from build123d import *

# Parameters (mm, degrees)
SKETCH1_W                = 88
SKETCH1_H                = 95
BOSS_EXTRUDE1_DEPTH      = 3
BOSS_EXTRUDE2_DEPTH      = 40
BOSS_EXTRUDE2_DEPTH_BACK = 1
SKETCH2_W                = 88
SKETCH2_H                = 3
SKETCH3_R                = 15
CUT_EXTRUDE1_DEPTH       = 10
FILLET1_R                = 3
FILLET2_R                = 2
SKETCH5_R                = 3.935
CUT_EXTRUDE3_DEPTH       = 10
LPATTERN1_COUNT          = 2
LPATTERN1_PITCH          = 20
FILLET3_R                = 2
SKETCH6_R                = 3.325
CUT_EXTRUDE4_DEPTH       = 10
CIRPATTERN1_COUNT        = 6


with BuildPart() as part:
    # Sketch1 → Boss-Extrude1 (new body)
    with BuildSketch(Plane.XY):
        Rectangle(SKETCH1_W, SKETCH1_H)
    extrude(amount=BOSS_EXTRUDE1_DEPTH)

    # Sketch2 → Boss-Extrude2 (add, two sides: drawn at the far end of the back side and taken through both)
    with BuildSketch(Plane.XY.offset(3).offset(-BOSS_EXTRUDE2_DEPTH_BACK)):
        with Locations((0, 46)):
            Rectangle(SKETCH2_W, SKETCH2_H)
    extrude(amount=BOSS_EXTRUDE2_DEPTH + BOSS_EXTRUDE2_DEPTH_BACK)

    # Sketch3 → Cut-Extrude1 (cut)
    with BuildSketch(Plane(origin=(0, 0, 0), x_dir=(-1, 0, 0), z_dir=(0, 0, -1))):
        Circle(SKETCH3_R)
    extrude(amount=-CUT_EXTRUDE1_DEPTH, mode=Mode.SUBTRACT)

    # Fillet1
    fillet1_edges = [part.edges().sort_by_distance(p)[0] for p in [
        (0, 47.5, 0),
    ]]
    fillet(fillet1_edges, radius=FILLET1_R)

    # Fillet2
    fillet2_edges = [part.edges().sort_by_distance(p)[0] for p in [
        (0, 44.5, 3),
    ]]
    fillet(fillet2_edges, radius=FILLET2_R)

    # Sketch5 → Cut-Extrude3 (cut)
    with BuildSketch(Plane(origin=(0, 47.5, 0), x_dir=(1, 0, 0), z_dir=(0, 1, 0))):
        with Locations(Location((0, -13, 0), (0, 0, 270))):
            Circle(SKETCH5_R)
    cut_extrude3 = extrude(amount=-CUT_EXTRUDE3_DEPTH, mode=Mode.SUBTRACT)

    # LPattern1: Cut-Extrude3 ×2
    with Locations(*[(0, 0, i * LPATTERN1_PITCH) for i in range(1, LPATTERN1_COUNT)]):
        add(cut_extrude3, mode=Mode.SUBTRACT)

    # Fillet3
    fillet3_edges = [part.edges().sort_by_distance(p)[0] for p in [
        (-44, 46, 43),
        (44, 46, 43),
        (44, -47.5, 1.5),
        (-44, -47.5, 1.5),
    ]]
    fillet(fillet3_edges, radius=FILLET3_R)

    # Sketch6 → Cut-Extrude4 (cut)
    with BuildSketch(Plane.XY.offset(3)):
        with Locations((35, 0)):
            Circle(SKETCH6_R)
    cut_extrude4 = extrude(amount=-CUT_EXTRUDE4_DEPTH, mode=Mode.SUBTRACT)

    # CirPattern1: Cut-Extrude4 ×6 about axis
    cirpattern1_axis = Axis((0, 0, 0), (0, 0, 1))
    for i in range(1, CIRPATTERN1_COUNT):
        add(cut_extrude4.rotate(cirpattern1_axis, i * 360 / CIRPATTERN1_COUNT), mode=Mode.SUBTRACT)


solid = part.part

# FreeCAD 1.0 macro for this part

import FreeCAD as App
import Part
import Sketcher


def edges_at(feature, points):
    """Names of the edges that pass closest to the given points."""
    edges = feature.Shape.Edges
    near = lambda p: min(range(len(edges)), key=lambda i: edges[i].distToShape(Part.Vertex(*p))[0])
    return sorted({f"Edge{near(p) + 1}" for p in points})

doc = App.newDocument("Part")
body = doc.addObject("PartDesign::Body", "Body")

sketch1 = body.newObject("Sketcher::SketchObject", "Sketch")
sketch1.AttachmentSupport = (doc.getObject("XY_Plane"), [""])
sketch1.MapMode = "FlatFace"
sketch1.addGeometry(Part.LineSegment(App.Vector(-44, 47.5, 0), App.Vector(-44, -47.5, 0)), False)
sketch1.addGeometry(Part.LineSegment(App.Vector(-44, -47.5, 0), App.Vector(44, -47.5, 0)), False)
sketch1.addGeometry(Part.LineSegment(App.Vector(44, -47.5, 0), App.Vector(44, 47.5, 0)), False)
sketch1.addGeometry(Part.LineSegment(App.Vector(44, 47.5, 0), App.Vector(-44, 47.5, 0)), False)
sketch1.addConstraint(Sketcher.Constraint("Coincident", 0, 2, 1, 1))
sketch1.addConstraint(Sketcher.Constraint("Coincident", 1, 2, 2, 1))
sketch1.addConstraint(Sketcher.Constraint("Coincident", 2, 2, 3, 1))
sketch1.addConstraint(Sketcher.Constraint("Coincident", 3, 2, 0, 1))
sketch1.addConstraint(Sketcher.Constraint("Vertical", 0))
sketch1.addConstraint(Sketcher.Constraint("Horizontal", 1))
sketch1.addConstraint(Sketcher.Constraint("Vertical", 2))
sketch1.addConstraint(Sketcher.Constraint("Horizontal", 3))
sketch1.addConstraint(Sketcher.Constraint("Symmetric", 0, 2, 2, 2, -1, 1))
sketch1.addConstraint(Sketcher.Constraint("DistanceX", 1, 1, 1, 2, 88.0))
sketch1.addConstraint(Sketcher.Constraint("DistanceY", 0, 2, 0, 1, 95.0))
pad1 = body.newObject("PartDesign::Pad", "Pad")
pad1.Profile = sketch1
pad1.Length = 3

sketch2 = body.newObject("Sketcher::SketchObject", "Sketch001")
sketch2.AttachmentSupport = (doc.getObject("XY_Plane"), [""])
sketch2.MapMode = "FlatFace"
sketch2.AttachmentOffset = App.Placement(App.Vector(0, 0, 3), App.Rotation())
sketch2.addGeometry(Part.LineSegment(App.Vector(-44, 47.5, 0), App.Vector(-44, 44.5, 0)), False)
sketch2.addGeometry(Part.LineSegment(App.Vector(-44, 44.5, 0), App.Vector(44, 44.5, 0)), False)
sketch2.addGeometry(Part.LineSegment(App.Vector(44, 44.5, 0), App.Vector(44, 47.5, 0)), False)
sketch2.addGeometry(Part.LineSegment(App.Vector(44, 47.5, 0), App.Vector(-44, 47.5, 0)), False)
sketch2.addConstraint(Sketcher.Constraint("Coincident", 0, 2, 1, 1))
sketch2.addConstraint(Sketcher.Constraint("Coincident", 1, 2, 2, 1))
sketch2.addConstraint(Sketcher.Constraint("Coincident", 2, 2, 3, 1))
sketch2.addConstraint(Sketcher.Constraint("Coincident", 3, 2, 0, 1))
sketch2.addConstraint(Sketcher.Constraint("Vertical", 0))
sketch2.addConstraint(Sketcher.Constraint("Horizontal", 1))
sketch2.addConstraint(Sketcher.Constraint("Vertical", 2))
sketch2.addConstraint(Sketcher.Constraint("Horizontal", 3))
sketch2.addConstraint(Sketcher.Constraint("DistanceX", 1, 1, 1, 2, 88.0))
sketch2.addConstraint(Sketcher.Constraint("DistanceY", 0, 2, 0, 1, 3.0))
sketch2.addConstraint(Sketcher.Constraint("DistanceX", 0, 2, -1, 1, 44.0))
sketch2.addConstraint(Sketcher.Constraint("DistanceY", -1, 1, 0, 2, 44.5))
pad2 = body.newObject("PartDesign::Pad", "Pad001")
pad2.Profile = sketch2
pad2.Type = "TwoLengths"
pad2.Length = 40
pad2.Length2 = 1

sketch3 = body.newObject("Sketcher::SketchObject", "Sketch002")
sketch3.AttachmentSupport = (doc.getObject("XY_Plane"), [""])
sketch3.MapMode = "FlatFace"
sketch3.addGeometry(Part.Circle(App.Vector(0, 0, 0), App.Vector(0, 0, 1), 15), False)
sketch3.addConstraint(Sketcher.Constraint("Coincident", 0, 3, -1, 1))
sketch3.addConstraint(Sketcher.Constraint("Diameter", 0, 30.0))
pocket1 = body.newObject("PartDesign::Pocket", "Pocket")
pocket1.Profile = sketch3
pocket1.Length = 10
pocket1.Reversed = True
doc.recompute()

fillet = body.newObject("PartDesign::Fillet", "Fillet")
fillet.Base = (pocket1, edges_at(pocket1, [(0, 47.5, 0)]))
fillet.Radius = 3
doc.recompute()

fillet2 = body.newObject("PartDesign::Fillet", "Fillet001")
fillet2.Base = (fillet, edges_at(fillet, [(0, 44.5, 3)]))
fillet2.Radius = 2

sketch4 = body.newObject("Sketcher::SketchObject", "Sketch003")
sketch4.AttachmentSupport = (doc.getObject("XZ_Plane"), [""])
sketch4.MapMode = "FlatFace"
sketch4.AttachmentOffset = App.Placement(App.Vector(0, 0, -47.5), App.Rotation())
sketch4.addGeometry(Part.Circle(App.Vector(0, 13, 0), App.Vector(0, 0, 1), 3.935), False)
sketch4.addConstraint(Sketcher.Constraint("PointOnObject", 0, 3, -2))
sketch4.addConstraint(Sketcher.Constraint("Diameter", 0, 7.87))
sketch4.addConstraint(Sketcher.Constraint("DistanceY", -1, 1, 0, 3, 13.0))
pocket2 = body.newObject("PartDesign::Pocket", "Pocket001")
pocket2.Profile = sketch4
pocket2.Length = 10
pocket2.Reversed = True
doc.recompute()

linearpattern = body.newObject("PartDesign::LinearPattern", "LinearPattern")
linearpattern.Originals = [pocket2]
linearpattern.Direction = (doc.getObject("Z_Axis"), [""])
linearpattern.Mode = "offset"
linearpattern.Offset = 20
linearpattern.Occurrences = 2
body.Tip = linearpattern
doc.recompute()

fillet3 = body.newObject("PartDesign::Fillet", "Fillet002")
fillet3.Base = (linearpattern, edges_at(linearpattern, [
    (-44, 46, 43),
    (44, 46, 43),
    (44, -47.5, 1.5),
    (-44, -47.5, 1.5),
]))
fillet3.Radius = 2

sketch5 = body.newObject("Sketcher::SketchObject", "Sketch004")
sketch5.AttachmentSupport = (doc.getObject("XY_Plane"), [""])
sketch5.MapMode = "FlatFace"
sketch5.AttachmentOffset = App.Placement(App.Vector(0, 0, 3), App.Rotation())
sketch5.addGeometry(Part.Circle(App.Vector(35, 0, 0), App.Vector(0, 0, 1), 3.325), False)
sketch5.addConstraint(Sketcher.Constraint("PointOnObject", 0, 3, -1))
sketch5.addConstraint(Sketcher.Constraint("Diameter", 0, 6.65))
sketch5.addConstraint(Sketcher.Constraint("DistanceX", -1, 1, 0, 3, 35.0))
pocket3 = body.newObject("PartDesign::Pocket", "Pocket002")
pocket3.Profile = sketch5
pocket3.Length = 10
doc.recompute()

polarpattern = body.newObject("PartDesign::PolarPattern", "PolarPattern")
polarpattern.Originals = [pocket3]
polarpattern.Axis = (doc.getObject("Z_Axis"), [""])
polarpattern.Angle = 360
polarpattern.Occurrences = 6
body.Tip = polarpattern

doc.recompute()
